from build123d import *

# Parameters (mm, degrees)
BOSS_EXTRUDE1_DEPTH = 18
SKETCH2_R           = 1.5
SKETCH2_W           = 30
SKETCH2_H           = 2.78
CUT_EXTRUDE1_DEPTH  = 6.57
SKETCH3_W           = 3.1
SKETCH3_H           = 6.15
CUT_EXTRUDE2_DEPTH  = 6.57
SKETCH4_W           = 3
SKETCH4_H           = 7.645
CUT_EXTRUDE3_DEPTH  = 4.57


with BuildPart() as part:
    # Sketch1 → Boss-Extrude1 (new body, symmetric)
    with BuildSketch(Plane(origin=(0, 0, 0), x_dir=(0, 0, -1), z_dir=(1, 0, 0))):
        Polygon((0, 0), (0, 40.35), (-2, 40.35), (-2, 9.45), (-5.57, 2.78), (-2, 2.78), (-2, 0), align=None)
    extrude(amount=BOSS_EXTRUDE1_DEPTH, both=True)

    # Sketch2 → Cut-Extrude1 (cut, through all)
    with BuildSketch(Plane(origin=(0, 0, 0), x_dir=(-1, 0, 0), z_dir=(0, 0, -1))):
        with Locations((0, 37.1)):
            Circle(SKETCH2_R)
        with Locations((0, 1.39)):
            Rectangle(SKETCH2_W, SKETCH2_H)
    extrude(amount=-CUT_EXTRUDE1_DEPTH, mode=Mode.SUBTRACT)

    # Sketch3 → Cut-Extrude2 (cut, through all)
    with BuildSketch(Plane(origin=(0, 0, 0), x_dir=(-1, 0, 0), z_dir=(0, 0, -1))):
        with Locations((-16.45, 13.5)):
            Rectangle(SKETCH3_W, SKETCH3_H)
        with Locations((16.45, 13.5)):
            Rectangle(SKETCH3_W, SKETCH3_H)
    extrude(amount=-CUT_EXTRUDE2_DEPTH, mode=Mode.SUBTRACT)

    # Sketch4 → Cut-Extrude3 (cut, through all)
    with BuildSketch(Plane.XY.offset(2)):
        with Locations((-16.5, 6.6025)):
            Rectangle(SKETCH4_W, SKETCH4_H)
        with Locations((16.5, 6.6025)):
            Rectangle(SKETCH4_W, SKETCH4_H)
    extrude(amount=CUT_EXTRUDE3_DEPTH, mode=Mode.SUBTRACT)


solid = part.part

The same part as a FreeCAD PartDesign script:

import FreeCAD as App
import Part
import Sketcher

V = App.Vector


def add_polygon(sketch, points):
    """Adds a closed chain of lines whose ends are joined by coincident constraints."""
    first, n = sketch.GeometryCount, len(points)
    for a, b in zip(points, points[1:] + points[:1]):
        sketch.addGeometry(Part.LineSegment(App.Vector(*a, 0), App.Vector(*b, 0)), False)
    for i in range(n):
        sketch.addConstraint(Sketcher.Constraint("Coincident", first + i, 2, first + (i + 1) % n, 1))

doc = App.newDocument("Part")
body = doc.addObject("PartDesign::Body", "Body")

# Sketch on YZ plane
sketch1 = body.newObject("Sketcher::SketchObject", "Sketch")
sketch1.AttachmentSupport = (doc.getObject("YZ_Plane"), [""])
sketch1.MapMode = "FlatFace"
add_polygon(sketch1, [(0, 0), (40.4, 0), (40.4, 2), (9.4, 2), (2.8, 5.6), (2.8, 2), (0, 2)])  # lines 0-6
sketch1.addConstraint([
    Sketcher.Constraint("Horizontal", 0),
    Sketcher.Constraint("Vertical", 1),
    Sketcher.Constraint("Horizontal", 2),
    Sketcher.Constraint("Vertical", 4),
    Sketcher.Constraint("Horizontal", 5),
    Sketcher.Constraint("Vertical", 6),
    Sketcher.Constraint("Coincident", 6, 2, -1, 1),
    Sketcher.Constraint("Horizontal", 2, 2, 4, 2),
    Sketcher.Constraint("DistanceY", 1, 1, 1, 2, 2.0),
    Sketcher.Constraint("DistanceX", 2, 2, 2, 1, 30.9),
    Sketcher.Constraint("DistanceX", 0, 1, 0, 2, 40.35),
    Sketcher.Constraint("DistanceX", 5, 2, 5, 1, 2.78),
    Sketcher.Constraint("DistanceY", 4, 2, 4, 1, 3.57),
])
pad1 = body.newObject("PartDesign::Pad", "Pad")
pad1.Profile = sketch1
pad1.Length = 36
pad1.Midplane = True

# Sketch on XY plane
sketch2 = body.newObject("Sketcher::SketchObject", "Sketch001")
sketch2.AttachmentSupport = (doc.getObject("XY_Plane"), [""])
sketch2.MapMode = "FlatFace"
sketch2.addGeometry(Part.Circle(V(0, 37.1, 0), V(0, 0, 1), 1.5), False)  # 0
add_polygon(sketch2, [(15, 2.8), (15, 0), (-15, 0), (-15, 2.8)])  # lines 1-4
sketch2.addConstraint([
    Sketcher.Constraint("Vertical", 1),
    Sketcher.Constraint("Horizontal", 2),
    Sketcher.Constraint("Vertical", 3),
    Sketcher.Constraint("Horizontal", 4),
    Sketcher.Constraint("Symmetric", 1, 2, 2, 2, -1, 1),
    Sketcher.Constraint("PointOnObject", 0, 3, -2),
    Sketcher.Constraint("Diameter", 0, 3.0),
    Sketcher.Constraint("DistanceX", 2, 2, 2, 1, 30.0),
    Sketcher.Constraint("DistanceY", 1, 2, 1, 1, 2.78),
    Sketcher.Constraint("DistanceY", -1, 1, 0, 3, 37.1),
])
pocket1 = body.newObject("PartDesign::Pocket", "Pocket")
pocket1.Profile = sketch2
pocket1.Type = "ThroughAll"
pocket1.Reversed = True

# Sketch on XY plane
sketch3 = body.newObject("Sketcher::SketchObject", "Sketch002")
sketch3.AttachmentSupport = (doc.getObject("XY_Plane"), [""])
sketch3.MapMode = "FlatFace"
add_polygon(sketch3, [(18, 16.6), (18, 10.4), (14.9, 10.4), (14.9, 16.6)])  # lines 0-3
add_polygon(sketch3, [(-14.9, 16.6), (-14.9, 10.4), (-18, 10.4), (-18, 16.6)])  # lines 4-7
sketch3.addConstraint([
    Sketcher.Constraint("Vertical", 0),
    Sketcher.Constraint("Horizontal", 1),
    Sketcher.Constraint("Vertical", 2),
    Sketcher.Constraint("Horizontal", 3),
    Sketcher.Constraint("Vertical", 4),
    Sketcher.Constraint("Horizontal", 5),
    Sketcher.Constraint("Vertical", 6),
    Sketcher.Constraint("Horizontal", 7),
    Sketcher.Constraint("Symmetric", 1, 2, 4, 2, -2),
    Sketcher.Constraint("Symmetric", 3, 2, 6, 2, -2),
    Sketcher.Constraint("DistanceX", 1, 2, 1, 1, 3.1),
    Sketcher.Constraint("DistanceX", -1, 1, 0, 2, 18.0),
    Sketcher.Constraint("DistanceY", 0, 2, 0, 1, 6.15),
    Sketcher.Constraint("DistanceY", -1, 1, 0, 2, 10.425),
])
pocket2 = body.newObject("PartDesign::Pocket", "Pocket001")
pocket2.Profile = sketch3
pocket2.Type = "ThroughAll"
pocket2.Reversed = True

# Sketch on XY plane
sketch4 = body.newObject("Sketcher::SketchObject", "Sketch003")
sketch4.AttachmentSupport = (doc.getObject("XY_Plane"), [""])
sketch4.MapMode = "FlatFace"
sketch4.AttachmentOffset = App.Placement(V(0, 0, 2), App.Rotation())
add_polygon(sketch4, [(-18, 10.4), (-18, 2.8), (-15, 2.8), (-15, 10.4)])  # lines 0-3
add_polygon(sketch4, [(15, 10.4), (15, 2.8), (18, 2.8), (18, 10.4)])  # lines 4-7
sketch4.addConstraint([
    Sketcher.Constraint("Vertical", 0),
    Sketcher.Constraint("Horizontal", 1),
    Sketcher.Constraint("Vertical", 2),
    Sketcher.Constraint("Horizontal", 3),
    Sketcher.Constraint("Vertical", 4),
    Sketcher.Constraint("Horizontal", 5),
    Sketcher.Constraint("Vertical", 6),
    Sketcher.Constraint("Horizontal", 7),
    Sketcher.Constraint("Symmetric", 1, 2, 4, 2, -2),
    Sketcher.Constraint("Symmetric", 3, 2, 6, 2, -2),
    Sketcher.Constraint("DistanceX", 1, 1, 1, 2, 3.0),
    Sketcher.Constraint("DistanceX", 0, 2, -1, 1, 18.0),
    Sketcher.Constraint("DistanceY", 0, 2, 0, 1, 7.645),
    Sketcher.Constraint("DistanceY", -1, 1, 0, 2, 2.78),
])
pocket3 = body.newObject("PartDesign::Pocket", "Pocket002")
pocket3.Profile = sketch4
pocket3.Type = "ThroughAll"
pocket3.Reversed = True

doc.recompute()
